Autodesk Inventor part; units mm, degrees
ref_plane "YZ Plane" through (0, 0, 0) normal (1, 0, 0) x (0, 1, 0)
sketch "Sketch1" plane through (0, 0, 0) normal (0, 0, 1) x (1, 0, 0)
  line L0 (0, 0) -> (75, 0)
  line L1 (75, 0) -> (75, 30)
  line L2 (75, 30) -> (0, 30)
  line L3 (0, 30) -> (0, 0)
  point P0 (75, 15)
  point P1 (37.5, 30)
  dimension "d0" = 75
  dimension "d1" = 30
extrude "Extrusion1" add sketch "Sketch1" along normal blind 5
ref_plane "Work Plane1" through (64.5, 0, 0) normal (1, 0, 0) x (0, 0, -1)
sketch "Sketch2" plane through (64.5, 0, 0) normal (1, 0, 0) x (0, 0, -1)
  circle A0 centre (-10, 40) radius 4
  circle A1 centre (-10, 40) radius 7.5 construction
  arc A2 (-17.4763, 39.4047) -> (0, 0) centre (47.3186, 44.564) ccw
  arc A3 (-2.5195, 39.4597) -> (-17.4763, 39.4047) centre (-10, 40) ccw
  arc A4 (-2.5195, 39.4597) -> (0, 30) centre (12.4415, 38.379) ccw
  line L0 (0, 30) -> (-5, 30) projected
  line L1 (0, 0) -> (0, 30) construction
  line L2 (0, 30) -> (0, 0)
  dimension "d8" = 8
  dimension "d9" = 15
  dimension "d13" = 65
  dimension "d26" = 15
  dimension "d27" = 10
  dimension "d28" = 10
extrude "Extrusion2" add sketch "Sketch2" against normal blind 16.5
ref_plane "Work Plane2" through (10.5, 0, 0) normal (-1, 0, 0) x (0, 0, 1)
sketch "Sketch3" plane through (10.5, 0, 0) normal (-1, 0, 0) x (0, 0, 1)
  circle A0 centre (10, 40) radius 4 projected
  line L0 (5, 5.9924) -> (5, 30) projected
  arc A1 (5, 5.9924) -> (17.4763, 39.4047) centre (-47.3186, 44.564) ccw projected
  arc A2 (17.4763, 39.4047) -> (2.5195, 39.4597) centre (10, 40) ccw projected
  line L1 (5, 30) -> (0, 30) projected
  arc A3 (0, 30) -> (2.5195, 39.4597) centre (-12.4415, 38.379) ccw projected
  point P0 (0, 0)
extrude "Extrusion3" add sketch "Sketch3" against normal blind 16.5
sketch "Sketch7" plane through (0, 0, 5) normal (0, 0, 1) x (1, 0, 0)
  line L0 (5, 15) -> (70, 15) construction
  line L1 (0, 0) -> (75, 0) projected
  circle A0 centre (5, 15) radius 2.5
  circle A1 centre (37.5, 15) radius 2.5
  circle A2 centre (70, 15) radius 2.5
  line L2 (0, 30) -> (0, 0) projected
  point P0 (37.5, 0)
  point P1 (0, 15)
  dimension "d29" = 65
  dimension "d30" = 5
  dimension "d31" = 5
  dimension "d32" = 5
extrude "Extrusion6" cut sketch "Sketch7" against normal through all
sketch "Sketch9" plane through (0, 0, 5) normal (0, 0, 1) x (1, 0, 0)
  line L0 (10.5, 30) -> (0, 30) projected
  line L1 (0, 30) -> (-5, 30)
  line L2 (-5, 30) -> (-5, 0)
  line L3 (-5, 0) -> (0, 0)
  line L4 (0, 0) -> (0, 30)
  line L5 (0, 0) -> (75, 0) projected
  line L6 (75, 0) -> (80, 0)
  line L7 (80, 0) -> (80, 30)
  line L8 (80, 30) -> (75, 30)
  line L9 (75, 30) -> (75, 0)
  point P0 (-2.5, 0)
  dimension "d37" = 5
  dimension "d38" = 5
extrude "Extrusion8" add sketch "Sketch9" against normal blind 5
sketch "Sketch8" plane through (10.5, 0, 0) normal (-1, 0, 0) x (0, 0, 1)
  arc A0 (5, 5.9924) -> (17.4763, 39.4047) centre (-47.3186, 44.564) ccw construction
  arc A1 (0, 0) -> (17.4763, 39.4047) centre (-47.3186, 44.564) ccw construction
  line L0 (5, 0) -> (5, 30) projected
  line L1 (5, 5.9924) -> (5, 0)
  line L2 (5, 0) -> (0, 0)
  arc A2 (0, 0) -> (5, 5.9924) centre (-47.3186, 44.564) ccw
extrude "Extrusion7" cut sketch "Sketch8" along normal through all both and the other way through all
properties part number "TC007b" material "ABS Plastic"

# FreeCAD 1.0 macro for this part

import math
import FreeCAD as App
import Part
import Sketcher

V = App.Vector


def add_polygon(sketch, points):
    """Adds a closed chain of lines whose ends are joined by coincident constraints."""
    first, n = sketch.GeometryCount, len(points)
    for a, b in zip(points, points[1:] + points[:1]):
        sketch.addGeometry(Part.LineSegment(App.Vector(*a, 0), App.Vector(*b, 0)), False)
    for i in range(n):
        sketch.addConstraint(Sketcher.Constraint("Coincident", first + i, 2, first + (i + 1) % n, 1))

doc = App.newDocument("Part")
body = doc.addObject("PartDesign::Body", "Body")

sketch1 = doc.addObject("Sketcher::SketchObject", "Sketch")
body.addObject(sketch1)
sketch1.AttachmentSupport = (doc.XY_Plane, [""])
sketch1.MapMode = "FlatFace"
add_polygon(sketch1, [(0, 30), (0, 0), (75, 0), (75, 30)])
sketch1.addConstraint([
    Sketcher.Constraint("Vertical", 0),
    Sketcher.Constraint("Horizontal", 1),
    Sketcher.Constraint("Vertical", 2),
    Sketcher.Constraint("Horizontal", 3),
    Sketcher.Constraint("Coincident", 0, 2, -1, 1),
    Sketcher.Constraint("DistanceX", 1, 1, 1, 2, 75.0),
    Sketcher.Constraint("DistanceY", 0, 2, 0, 1, 30.0),
])
pad1 = doc.addObject("PartDesign::Pad", "Pad")
body.addObject(pad1)
pad1.Profile = sketch1
pad1.Length = 5

sketch2 = doc.addObject("Sketcher::SketchObject", "Sketch001")
body.addObject(sketch2)
sketch2.AttachmentSupport = (doc.YZ_Plane, [""])
sketch2.MapMode = "FlatFace"
sketch2.AttachmentOffset = App.Placement(V(0, 0, 64.5), App.Rotation())
sketch2.addGeometry([
    Part.ArcOfCircle(Part.Circle(V(40, 10, 0), V(0, 0, 1), 7.499987), math.radians(-94.131174), math.radians(94.552568)),
    Part.ArcOfCircle(Part.Circle(V(44.564, -47.3186, 0), V(0, 0, 1), 64.99998), math.radians(94.552577), math.radians(133.282812)),
    Part.LineSegment(V(0, 0, 0), V(30, 0, 0)),
    Part.ArcOfCircle(Part.Circle(V(38.379, -12.4415, 0), V(0, 0, 1), 14.999981), math.radians(85.868445), math.radians(123.959157)),
    Part.Circle(V(40, 10, 0), V(0, 0, 1), 4),
], False)
sketch2.addConstraint([
    Sketcher.Constraint("Tangent", 0, 2, 1, 1),
    Sketcher.Constraint("Coincident", 1, 2, 2, 1),
    Sketcher.Constraint("Coincident", 2, 2, 3, 2),
    Sketcher.Constraint("Tangent", 3, 1, 0, 1),
    Sketcher.Constraint("Horizontal", 2),
    Sketcher.Constraint("Coincident", 1, 2, -1, 1),
    Sketcher.Constraint("Coincident", 4, 3, 0, 3),
    Sketcher.Constraint("Diameter", 4, 8.0),
    Sketcher.Constraint("Radius", 1, 65.0),
    Sketcher.Constraint("Radius", 3, 15.0),
    Sketcher.Constraint("Radius", 0, 7.5),
    Sketcher.Constraint("DistanceY", -1, 1, 0, 3, 10.0),
    Sketcher.Constraint("DistanceX", 2, 2, 0, 3, 10.0),
    Sketcher.Constraint("DistanceX", 2, 1, 2, 2, 30.0),
])
pad2 = doc.addObject("PartDesign::Pad", "Pad001")
body.addObject(pad2)
pad2.Profile = sketch2
pad2.Length = 16.5
pad2.Reversed = True

sketch3 = doc.addObject("Sketcher::SketchObject", "Sketch002")
body.addObject(sketch3)
sketch3.AttachmentSupport = (doc.YZ_Plane, [""])
sketch3.MapMode = "FlatFace"
sketch3.AttachmentOffset = App.Placement(V(0, 0, 10.5), App.Rotation())
sketch3.addGeometry([
    Part.LineSegment(V(30, 5, 0), V(5.9924, 5, 0)),
    Part.ArcOfCircle(Part.Circle(V(44.564, -47.3186, 0), V(0, 0, 1), 65.000033), math.radians(94.552577), math.radians(126.399292)),
    Part.ArcOfCircle(Part.Circle(V(40, 10, 0), V(0, 0, 1), 7.499963), math.radians(-94.131174), math.radians(94.552568)),
    Part.ArcOfCircle(Part.Circle(V(38.379, -12.4415, 0), V(0, 0, 1), 14.999952), math.radians(85.868445), math.radians(123.959157)),
    Part.LineSegment(V(30, 0, 0), V(30, 5, 0)),
    Part.Circle(V(40, 10, 0), V(0, 0, 1), 4),
], False)
sketch3.addConstraint([
    Sketcher.Constraint("Coincident", 0, 2, 1, 2),
    Sketcher.Constraint("Tangent", 1, 1, 2, 2),
    Sketcher.Constraint("Tangent", 2, 1, 3, 1),
    Sketcher.Constraint("Coincident", 3, 2, 4, 1),
    Sketcher.Constraint("Coincident", 4, 2, 0, 1),
    Sketcher.Constraint("Horizontal", 0),
    Sketcher.Constraint("Vertical", 4),
    Sketcher.Constraint("Coincident", 5, 3, 2, 3),
    Sketcher.Constraint("PointOnObject", 3, 2, -1),
    Sketcher.Constraint("Diameter", 5, 8.0),
    Sketcher.Constraint("Radius", 1, 65.0),
    Sketcher.Constraint("Radius", 3, 15.0),
    Sketcher.Constraint("Radius", 2, 7.5),
    Sketcher.Constraint("DistanceY", 4, 1, 4, 2, 5.0),
    Sketcher.Constraint("DistanceX", -1, 1, 2, 3, 40.0),
    Sketcher.Constraint("DistanceY", -1, 1, 2, 3, 10.0),
    Sketcher.Constraint("DistanceX", -1, 1, 3, 2, 30.0),
    Sketcher.Constraint("DistanceX", 0, 2, 0, 1, 24.0076),
])
pad3 = doc.addObject("PartDesign::Pad", "Pad002")
body.addObject(pad3)
pad3.Profile = sketch3
pad3.Length = 16.5

sketch4 = doc.addObject("Sketcher::SketchObject", "Sketch003")
body.addObject(sketch4)
sketch4.AttachmentSupport = (doc.XY_Plane, [""])
sketch4.MapMode = "FlatFace"
sketch4.AttachmentOffset = App.Placement(V(0, 0, 5), App.Rotation())
sketch4.addGeometry([
    Part.Circle(V(5, 15, 0), V(0, 0, 1), 2.5),
    Part.Circle(V(37.5, 15, 0), V(0, 0, 1), 2.5),
    Part.Circle(V(70, 15, 0), V(0, 0, 1), 2.5),
], False)
sketch4.addConstraint([
    Sketcher.Constraint("Equal", 0, 1),
    Sketcher.Constraint("Equal", 1, 2),
    Sketcher.Constraint("Horizontal", 0, 3, 1, 3),
    Sketcher.Constraint("Horizontal", 1, 3, 2, 3),
    Sketcher.Constraint("Diameter", 0, 5.0),
    Sketcher.Constraint("DistanceX", -1, 1, 0, 3, 5.0),
    Sketcher.Constraint("DistanceX", 0, 3, 2, 3, 65.0),
    Sketcher.Constraint("DistanceY", -1, 1, 0, 3, 15.0),
    Sketcher.Constraint("DistanceX", -1, 1, 1, 3, 37.5),
])
pocket1 = doc.addObject("PartDesign::Pocket", "Pocket")
body.addObject(pocket1)
pocket1.Profile = sketch4
pocket1.Type = "ThroughAll"

sketch5 = doc.addObject("Sketcher::SketchObject", "Sketch004")
body.addObject(sketch5)
sketch5.AttachmentSupport = (doc.XY_Plane, [""])
sketch5.MapMode = "FlatFace"
sketch5.AttachmentOffset = App.Placement(V(0, 0, 5), App.Rotation())
add_polygon(sketch5, [(0, 0), (0, 30), (-5, 30), (-5, 0)])
add_polygon(sketch5, [(75, 30), (75, 0), (80, 0), (80, 30)])
sketch5.addConstraint([
    Sketcher.Constraint("Vertical", 0),
    Sketcher.Constraint("Horizontal", 1),
    Sketcher.Constraint("Vertical", 2),
    Sketcher.Constraint("Horizontal", 3),
    Sketcher.Constraint("Vertical", 4),
    Sketcher.Constraint("Horizontal", 5),
    Sketcher.Constraint("Vertical", 6),
    Sketcher.Constraint("Horizontal", 7),
    Sketcher.Constraint("Coincident", 3, 2, -1, 1),
    Sketcher.Constraint("PointOnObject", 4, 2, -1),
    Sketcher.Constraint("Horizontal", 1, 2, 6, 2),
    Sketcher.Constraint("Equal", 3, 5),
    Sketcher.Constraint("DistanceX", 1, 2, 1, 1, 5.0),
    Sketcher.Constraint("DistanceY", 0, 1, 0, 2, 30.0),
    Sketcher.Constraint("DistanceX", -1, 1, 4, 2, 75.0),
])
pad4 = doc.addObject("PartDesign::Pad", "Pad003")
body.addObject(pad4)
pad4.Profile = sketch5
pad4.Length = 5
pad4.Reversed = True

sketch6 = doc.addObject("Sketcher::SketchObject", "Sketch005")
body.addObject(sketch6)
sketch6.AttachmentSupport = (doc.YZ_Plane, [""])
sketch6.MapMode = "FlatFace"
sketch6.AttachmentOffset = App.Placement(V(0, 0, 10.5), App.Rotation())
sketch6.addGeometry([
    Part.LineSegment(V(0, 0, 0), V(0, 5, 0)),
    Part.LineSegment(V(0, 5, 0), V(5.9924, 5, 0)),
    Part.ArcOfCircle(Part.Circle(V(44.569989, -47.325354, 0), V(0, 0, 1), 65.009023), math.radians(126.400007), math.radians(133.282573)),
], False)
sketch6.addConstraint([
    Sketcher.Constraint("Coincident", 0, 2, 1, 1),
    Sketcher.Constraint("Coincident", 1, 2, 2, 1),
    Sketcher.Constraint("Coincident", 2, 2, 0, 1),
    Sketcher.Constraint("Vertical", 0),
    Sketcher.Constraint("Horizontal", 1),
    Sketcher.Constraint("Coincident", 2, 2, -1, 1),
    Sketcher.Constraint("DistanceY", 0, 1, 0, 2, 5.0),
    Sketcher.Constraint("Radius", 2, 65.009),
    Sketcher.Constraint("DistanceX", -1, 1, 2, 3, 44.57),
])
pocket2 = doc.addObject("PartDesign::Pocket", "Pocket001")
body.addObject(pocket2)
pocket2.Profile = sketch6
pocket2.Type = "ThroughAll"
pocket2.Midplane = True

doc.recompute()
